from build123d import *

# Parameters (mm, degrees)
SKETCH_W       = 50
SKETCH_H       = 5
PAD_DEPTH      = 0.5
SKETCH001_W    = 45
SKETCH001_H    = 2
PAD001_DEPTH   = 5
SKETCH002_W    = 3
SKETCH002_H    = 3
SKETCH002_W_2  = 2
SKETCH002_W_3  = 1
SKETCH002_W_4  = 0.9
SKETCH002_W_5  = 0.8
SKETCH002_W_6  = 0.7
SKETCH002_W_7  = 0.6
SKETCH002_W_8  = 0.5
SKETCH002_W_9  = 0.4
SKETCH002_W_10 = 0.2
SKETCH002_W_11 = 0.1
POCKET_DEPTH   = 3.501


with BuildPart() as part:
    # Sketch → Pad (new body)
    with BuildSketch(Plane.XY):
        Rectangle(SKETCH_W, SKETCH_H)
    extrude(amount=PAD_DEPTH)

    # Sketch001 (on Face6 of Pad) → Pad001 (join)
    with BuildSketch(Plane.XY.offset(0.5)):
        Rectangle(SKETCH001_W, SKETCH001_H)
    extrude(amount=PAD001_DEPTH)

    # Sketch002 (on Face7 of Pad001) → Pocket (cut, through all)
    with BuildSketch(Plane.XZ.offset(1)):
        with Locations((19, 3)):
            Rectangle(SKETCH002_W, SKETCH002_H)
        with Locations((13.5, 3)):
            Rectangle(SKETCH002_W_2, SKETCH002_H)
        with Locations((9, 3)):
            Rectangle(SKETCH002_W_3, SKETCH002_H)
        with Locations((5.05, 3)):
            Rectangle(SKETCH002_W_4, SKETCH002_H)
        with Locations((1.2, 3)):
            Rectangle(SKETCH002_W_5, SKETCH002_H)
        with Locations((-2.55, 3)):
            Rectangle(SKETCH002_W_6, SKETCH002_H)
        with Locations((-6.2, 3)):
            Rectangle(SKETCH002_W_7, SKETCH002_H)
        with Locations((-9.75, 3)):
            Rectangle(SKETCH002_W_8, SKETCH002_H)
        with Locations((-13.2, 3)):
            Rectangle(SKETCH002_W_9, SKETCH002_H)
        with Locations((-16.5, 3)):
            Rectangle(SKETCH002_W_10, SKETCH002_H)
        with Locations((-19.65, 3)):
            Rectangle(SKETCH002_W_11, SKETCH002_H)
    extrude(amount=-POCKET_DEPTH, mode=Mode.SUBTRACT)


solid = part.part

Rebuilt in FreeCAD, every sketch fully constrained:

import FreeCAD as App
import Part
import Sketcher
from FreeCAD import Vector
Q = App.Units.Quantity

doc = App.newDocument("Part")
body = doc.addObject("PartDesign::Body", "Body")

sketch1 = doc.addObject("Sketcher::SketchObject", "Sketch")
body.addObject(sketch1)
sketch1.AttachmentSupport = (doc.XY_Plane, [""])
sketch1.MapMode = "FlatFace"
sketch1.addGeometry([
    Part.LineSegment(Vector(-25, 2, 0), Vector(-25, -2, 0)),
    Part.LineSegment(Vector(-25, -2, 0), Vector(25, -2, 0)),
    Part.LineSegment(Vector(25, -2, 0), Vector(25, 2, 0)),
    Part.LineSegment(Vector(25, 2, 0), Vector(-25, 2, 0)),
], False)
sketch1.addConstraint([
    Sketcher.Constraint("Coincident", 0, 2, 1, 1),
    Sketcher.Constraint("Coincident", 1, 2, 2, 1),
    Sketcher.Constraint("Coincident", 2, 2, 3, 1),
    Sketcher.Constraint("Coincident", 3, 2, 0, 1),
    Sketcher.Constraint("Vertical", 0),
    Sketcher.Constraint("Horizontal", 1),
    Sketcher.Constraint("Vertical", 2),
    Sketcher.Constraint("Horizontal", 3),
    Sketcher.Constraint("Symmetric", 0, 2, 2, 2, -1, 1),
    Sketcher.Constraint("DistanceX", 1, 1, 1, 2, Q("50 mm")),
    Sketcher.Constraint("DistanceY", 0, 2, 0, 1, Q("5 mm")),
])
pad1 = doc.addObject("PartDesign::Pad", "Pad")
body.addObject(pad1)
pad1.Profile = sketch1
pad1.Length = 0.5

sketch2 = doc.addObject("Sketcher::SketchObject", "Sketch001")
body.addObject(sketch2)
sketch2.AttachmentSupport = (doc.XY_Plane, [""])
sketch2.MapMode = "FlatFace"
sketch2.AttachmentOffset = App.Placement(Vector(0, 0, 0.5), App.Rotation())
sketch2.addGeometry([
    Part.LineSegment(Vector(-22.5, 1, 0), Vector(-22.5, -1, 0)),
    Part.LineSegment(Vector(-22.5, -1, 0), Vector(22.5, -1, 0)),
    Part.LineSegment(Vector(22.5, -1, 0), Vector(22.5, 1, 0)),
    Part.LineSegment(Vector(22.5, 1, 0), Vector(-22.5, 1, 0)),
], False)
sketch2.addConstraint([
    Sketcher.Constraint("Coincident", 0, 2, 1, 1),
    Sketcher.Constraint("Coincident", 1, 2, 2, 1),
    Sketcher.Constraint("Coincident", 2, 2, 3, 1),
    Sketcher.Constraint("Coincident", 3, 2, 0, 1),
    Sketcher.Constraint("Vertical", 0),
    Sketcher.Constraint("Horizontal", 1),
    Sketcher.Constraint("Vertical", 2),
    Sketcher.Constraint("Horizontal", 3),
    Sketcher.Constraint("Symmetric", 0, 2, 2, 2, -1, 1),
    Sketcher.Constraint("DistanceX", 1, 1, 1, 2, Q("45 mm")),
    Sketcher.Constraint("DistanceY", 0, 2, 0, 1, Q("2 mm")),
])
pad2 = doc.addObject("PartDesign::Pad", "Pad001")
body.addObject(pad2)
pad2.Profile = sketch2
pad2.Length = 5

sketch3 = doc.addObject("Sketcher::SketchObject", "Sketch002")
body.addObject(sketch3)
sketch3.AttachmentSupport = (doc.XZ_Plane, [""])
sketch3.MapMode = "FlatFace"
sketch3.AttachmentOffset = App.Placement(Vector(0, 0, 1), App.Rotation())
sketch3.addGeometry([
    Part.LineSegment(Vector(17.5, 4.5, 0), Vector(17.5, 1.5, 0)),
    Part.LineSegment(Vector(17.5, 1.5, 0), Vector(20.5, 1.5, 0)),
    Part.LineSegment(Vector(20.5, 1.5, 0), Vector(20.5, 4.5, 0)),
    Part.LineSegment(Vector(20.5, 4.5, 0), Vector(17.5, 4.5, 0)),
    Part.LineSegment(Vector(12.5, 4.5, 0), Vector(12.5, 1.5, 0)),
    Part.LineSegment(Vector(12.5, 1.5, 0), Vector(14.5, 1.5, 0)),
    Part.LineSegment(Vector(14.5, 1.5, 0), Vector(14.5, 4.5, 0)),
    Part.LineSegment(Vector(14.5, 4.5, 0), Vector(12.5, 4.5, 0)),
    Part.LineSegment(Vector(8.5, 4.5, 0), Vector(8.5, 1.5, 0)),
    Part.LineSegment(Vector(8.5, 1.5, 0), Vector(9.5, 1.5, 0)),
    Part.LineSegment(Vector(9.5, 1.5, 0), Vector(9.5, 4.5, 0)),
    Part.LineSegment(Vector(9.5, 4.5, 0), Vector(8.5, 4.5, 0)),
    Part.LineSegment(Vector(4.6, 4.5, 0), Vector(4.6, 1.5, 0)),
    Part.LineSegment(Vector(4.6, 1.5, 0), Vector(5.5, 1.5, 0)),
    Part.LineSegment(Vector(5.5, 1.5, 0), Vector(5.5, 4.5, 0)),
    Part.LineSegment(Vector(5.5, 4.5, 0), Vector(4.6, 4.5, 0)),
    Part.LineSegment(Vector(0.8, 4.5, 0), Vector(0.8, 1.5, 0)),
    Part.LineSegment(Vector(0.8, 1.5, 0), Vector(1.6, 1.5, 0)),
    Part.LineSegment(Vector(1.6, 1.5, 0), Vector(1.6, 4.5, 0)),
    Part.LineSegment(Vector(1.6, 4.5, 0), Vector(0.8, 4.5, 0)),
    Part.LineSegment(Vector(-2.9, 4.5, 0), Vector(-2.9, 1.5, 0)),
    Part.LineSegment(Vector(-2.9, 1.5, 0), Vector(-2.2, 1.5, 0)),
    Part.LineSegment(Vector(-2.2, 1.5, 0), Vector(-2.2, 4.5, 0)),
    Part.LineSegment(Vector(-2.2, 4.5, 0), Vector(-2.9, 4.5, 0)),
    Part.LineSegment(Vector(-6.5, 4.5, 0), Vector(-6.5, 1.5, 0)),
    Part.LineSegment(Vector(-6.5, 1.5, 0), Vector(-5.9, 1.5, 0)),
    Part.LineSegment(Vector(-5.9, 1.5, 0), Vector(-5.9, 4.5, 0)),
    Part.LineSegment(Vector(-5.9, 4.5, 0), Vector(-6.5, 4.5, 0)),
    Part.LineSegment(Vector(-10, 4.5, 0), Vector(-10, 1.5, 0)),
    Part.LineSegment(Vector(-10, 1.5, 0), Vector(-9.5, 1.5, 0)),
    Part.LineSegment(Vector(-9.5, 1.5, 0), Vector(-9.5, 4.5, 0)),
    Part.LineSegment(Vector(-9.5, 4.5, 0), Vector(-10, 4.5, 0)),
    Part.LineSegment(Vector(-13.4, 4.5, 0), Vector(-13.4, 1.5, 0)),
    Part.LineSegment(Vector(-13.4, 1.5, 0), Vector(-13, 1.5, 0)),
    Part.LineSegment(Vector(-13, 1.5, 0), Vector(-13, 4.5, 0)),
    Part.LineSegment(Vector(-13, 4.5, 0), Vector(-13.4, 4.5, 0)),
    Part.LineSegment(Vector(-16.6, 4.5, 0), Vector(-16.6, 1.5, 0)),
    Part.LineSegment(Vector(-16.6, 1.5, 0), Vector(-16.4, 1.5, 0)),
    Part.LineSegment(Vector(-16.4, 1.5, 0), Vector(-16.4, 4.5, 0)),
    Part.LineSegment(Vector(-16.4, 4.5, 0), Vector(-16.6, 4.5, 0)),
    Part.LineSegment(Vector(-19.7, 4.5, 0), Vector(-19.7, 1.5, 0)),
    Part.LineSegment(Vector(-19.7, 1.5, 0), Vector(-19.6, 1.5, 0)),
    Part.LineSegment(Vector(-19.6, 1.5, 0), Vector(-19.6, 4.5, 0)),
    Part.LineSegment(Vector(-19.6, 4.5, 0), Vector(-19.7, 4.5, 0)),
], False)
sketch3.addConstraint([
    Sketcher.Constraint("Coincident", 0, 2, 1, 1),
    Sketcher.Constraint("Coincident", 1, 2, 2, 1),
    Sketcher.Constraint("Coincident", 2, 2, 3, 1),
    Sketcher.Constraint("Coincident", 3, 2, 0, 1),
    Sketcher.Constraint("Coincident", 4, 2, 5, 1),
    Sketcher.Constraint("Coincident", 5, 2, 6, 1),
    Sketcher.Constraint("Coincident", 6, 2, 7, 1),
    Sketcher.Constraint("Coincident", 7, 2, 4, 1),
    Sketcher.Constraint("Coincident", 8, 2, 9, 1),
    Sketcher.Constraint("Coincident", 9, 2, 10, 1),
    Sketcher.Constraint("Coincident", 10, 2, 11, 1),
    Sketcher.Constraint("Coincident", 11, 2, 8, 1),
    Sketcher.Constraint("Coincident", 12, 2, 13, 1),
    Sketcher.Constraint("Coincident", 13, 2, 14, 1),
    Sketcher.Constraint("Coincident", 14, 2, 15, 1),
    Sketcher.Constraint("Coincident", 15, 2, 12, 1),
    Sketcher.Constraint("Coincident", 16, 2, 17, 1),
    Sketcher.Constraint("Coincident", 17, 2, 18, 1),
    Sketcher.Constraint("Coincident", 18, 2, 19, 1),
    Sketcher.Constraint("Coincident", 19, 2, 16, 1),
    Sketcher.Constraint("Coincident", 20, 2, 21, 1),
    Sketcher.Constraint("Coincident", 21, 2, 22, 1),
    Sketcher.Constraint("Coincident", 22, 2, 23, 1),
    Sketcher.Constraint("Coincident", 23, 2, 20, 1),
    Sketcher.Constraint("Coincident", 24, 2, 25, 1),
    Sketcher.Constraint("Coincident", 25, 2, 26, 1),
    Sketcher.Constraint("Coincident", 26, 2, 27, 1),
    Sketcher.Constraint("Coincident", 27, 2, 24, 1),
    Sketcher.Constraint("Coincident", 28, 2, 29, 1),
    Sketcher.Constraint("Coincident", 29, 2, 30, 1),
    Sketcher.Constraint("Coincident", 30, 2, 31, 1),
    Sketcher.Constraint("Coincident", 31, 2, 28, 1),
    Sketcher.Constraint("Coincident", 32, 2, 33, 1),
    Sketcher.Constraint("Coincident", 33, 2, 34, 1),
    Sketcher.Constraint("Coincident", 34, 2, 35, 1),
    Sketcher.Constraint("Coincident", 35, 2, 32, 1),
    Sketcher.Constraint("Coincident", 36, 2, 37, 1),
    Sketcher.Constraint("Coincident", 37, 2, 38, 1),
    Sketcher.Constraint("Coincident", 38, 2, 39, 1),
    Sketcher.Constraint("Coincident", 39, 2, 36, 1),
    Sketcher.Constraint("Coincident", 40, 2, 41, 1),
    Sketcher.Constraint("Coincident", 41, 2, 42, 1),
    Sketcher.Constraint("Coincident", 42, 2, 43, 1),
    Sketcher.Constraint("Coincident", 43, 2, 40, 1),
    Sketcher.Constraint("Vertical", 0),
    Sketcher.Constraint("Horizontal", 1),
    Sketcher.Constraint("Vertical", 2),
    Sketcher.Constraint("Horizontal", 3),
    Sketcher.Constraint("Vertical", 4),
    Sketcher.Constraint("Horizontal", 5),
    Sketcher.Constraint("Vertical", 6),
    Sketcher.Constraint("Horizontal", 7),
    Sketcher.Constraint("Vertical", 8),
    Sketcher.Constraint("Horizontal", 9),
    Sketcher.Constraint("Vertical", 10),
    Sketcher.Constraint("Horizontal", 11),
    Sketcher.Constraint("Vertical", 12),
    Sketcher.Constraint("Horizontal", 13),
    Sketcher.Constraint("Vertical", 14),
    Sketcher.Constraint("Horizontal", 15),
    Sketcher.Constraint("Vertical", 16),
    Sketcher.Constraint("Horizontal", 17),
    Sketcher.Constraint("Vertical", 18),
    Sketcher.Constraint("Horizontal", 19),
    Sketcher.Constraint("Vertical", 20),
    Sketcher.Constraint("Horizontal", 21),
    Sketcher.Constraint("Vertical", 22),
    Sketcher.Constraint("Horizontal", 23),
    Sketcher.Constraint("Vertical", 24),
    Sketcher.Constraint("Horizontal", 25),
    Sketcher.Constraint("Vertical", 26),
    Sketcher.Constraint("Horizontal", 27),
    Sketcher.Constraint("Vertical", 28),
    Sketcher.Constraint("Horizontal", 29),
    Sketcher.Constraint("Vertical", 30),
    Sketcher.Constraint("Horizontal", 31),
    Sketcher.Constraint("Vertical", 32),
    Sketcher.Constraint("Horizontal", 33),
    Sketcher.Constraint("Vertical", 34),
    Sketcher.Constraint("Horizontal", 35),
    Sketcher.Constraint("Vertical", 36),
    Sketcher.Constraint("Horizontal", 37),
    Sketcher.Constraint("Vertical", 38),
    Sketcher.Constraint("Horizontal", 39),
    Sketcher.Constraint("Vertical", 40),
    Sketcher.Constraint("Horizontal", 41),
    Sketcher.Constraint("Vertical", 42),
    Sketcher.Constraint("Horizontal", 43),
    Sketcher.Constraint("Symmetric", 9, 2, 29, 2, -2),
    Sketcher.Constraint("Horizontal", 1, 2, 4, 2),
    Sketcher.Constraint("Horizontal", 3, 2, 6, 2),
    Sketcher.Constraint("Horizontal", 5, 2, 8, 2),
    Sketcher.Constraint("Horizontal", 7, 2, 10, 2),
    Sketcher.Constraint("Horizontal", 9, 2, 12, 2),
    Sketcher.Constraint("Horizontal", 11, 2, 14, 2),
    Sketcher.Constraint("Horizontal", 13, 2, 16, 2),
    Sketcher.Constraint("Horizontal", 15, 2, 18, 2),
    Sketcher.Constraint("Horizontal", 17, 2, 20, 2),
    Sketcher.Constraint("Horizontal", 19, 2, 22, 2),
    Sketcher.Constraint("Horizontal", 21, 2, 24, 2),
    Sketcher.Constraint("Horizontal", 23, 2, 26, 2),
    Sketcher.Constraint("Horizontal", 27, 2, 30, 2),
    Sketcher.Constraint("Horizontal", 29, 2, 32, 2),
    Sketcher.Constraint("Horizontal", 31, 2, 34, 2),
    Sketcher.Constraint("Horizontal", 33, 2, 36, 2),
    Sketcher.Constraint("Horizontal", 35, 2, 38, 2),
    Sketcher.Constraint("Horizontal", 37, 2, 40, 2),
    Sketcher.Constraint("Horizontal", 39, 2, 42, 2),
    Sketcher.Constraint("Equal", 3, 0),
    Sketcher.Constraint("DistanceX", 1, 1, 1, 2, Q("3 mm")),
    Sketcher.Constraint("DistanceX", 5, 1, 5, 2, Q("2 mm")),
    Sketcher.Constraint("DistanceX", 9, 1, 9, 2, Q("1 mm")),
    Sketcher.Constraint("DistanceX", 13, 1, 13, 2, Q("0.9 mm")),
    Sketcher.Constraint("DistanceX", 17, 1, 17, 2, Q("0.8 mm")),
    Sketcher.Constraint("DistanceX", 21, 1, 21, 2, Q("0.7 mm")),
    Sketcher.Constraint("DistanceX", 25, 1, 25, 2, Q("0.6 mm")),
    Sketcher.Constraint("DistanceX", 29, 1, 29, 2, Q("0.5 mm")),
    Sketcher.Constraint("DistanceX", 33, 1, 33, 2, Q("0.4 mm")),
    Sketcher.Constraint("DistanceX", 37, 1, 37, 2, Q("0.2 mm")),
    Sketcher.Constraint("DistanceX", 41, 1, 41, 2, Q("0.1 mm")),
    Sketcher.Constraint("DistanceX", 28, 2, -1, 1, Q("10 mm")),
    Sketcher.Constraint("DistanceX", 33, 2, -1, 1, Q("13 mm")),
    Sketcher.Constraint("DistanceX", 4, 2, 0, 2, Q("5 mm")),
    Sketcher.Constraint("DistanceX", 8, 2, 4, 2, Q("4 mm")),
    Sketcher.Constraint("DistanceX", 13, 2, 8, 2, Q("3 mm")),
    Sketcher.Constraint("DistanceX", 17, 2, 12, 2, Q("3 mm")),
    Sketcher.Constraint("DistanceX", 21, 2, 16, 2, Q("3 mm")),
    Sketcher.Constraint("DistanceX", 25, 2, 20, 2, Q("3 mm")),
    Sketcher.Constraint("DistanceX", 37, 2, 32, 2, Q("3 mm")),
    Sketcher.Constraint("DistanceX", 41, 2, 36, 2, Q("3 mm")),
    Sketcher.Constraint("DistanceY", -1, 1, 0, 2, Q("1.5 mm")),
])
pocket1 = doc.addObject("PartDesign::Pocket", "Pocket")
body.addObject(pocket1)
pocket1.Profile = sketch3
pocket1.Type = "ThroughAll"

doc.recompute()
